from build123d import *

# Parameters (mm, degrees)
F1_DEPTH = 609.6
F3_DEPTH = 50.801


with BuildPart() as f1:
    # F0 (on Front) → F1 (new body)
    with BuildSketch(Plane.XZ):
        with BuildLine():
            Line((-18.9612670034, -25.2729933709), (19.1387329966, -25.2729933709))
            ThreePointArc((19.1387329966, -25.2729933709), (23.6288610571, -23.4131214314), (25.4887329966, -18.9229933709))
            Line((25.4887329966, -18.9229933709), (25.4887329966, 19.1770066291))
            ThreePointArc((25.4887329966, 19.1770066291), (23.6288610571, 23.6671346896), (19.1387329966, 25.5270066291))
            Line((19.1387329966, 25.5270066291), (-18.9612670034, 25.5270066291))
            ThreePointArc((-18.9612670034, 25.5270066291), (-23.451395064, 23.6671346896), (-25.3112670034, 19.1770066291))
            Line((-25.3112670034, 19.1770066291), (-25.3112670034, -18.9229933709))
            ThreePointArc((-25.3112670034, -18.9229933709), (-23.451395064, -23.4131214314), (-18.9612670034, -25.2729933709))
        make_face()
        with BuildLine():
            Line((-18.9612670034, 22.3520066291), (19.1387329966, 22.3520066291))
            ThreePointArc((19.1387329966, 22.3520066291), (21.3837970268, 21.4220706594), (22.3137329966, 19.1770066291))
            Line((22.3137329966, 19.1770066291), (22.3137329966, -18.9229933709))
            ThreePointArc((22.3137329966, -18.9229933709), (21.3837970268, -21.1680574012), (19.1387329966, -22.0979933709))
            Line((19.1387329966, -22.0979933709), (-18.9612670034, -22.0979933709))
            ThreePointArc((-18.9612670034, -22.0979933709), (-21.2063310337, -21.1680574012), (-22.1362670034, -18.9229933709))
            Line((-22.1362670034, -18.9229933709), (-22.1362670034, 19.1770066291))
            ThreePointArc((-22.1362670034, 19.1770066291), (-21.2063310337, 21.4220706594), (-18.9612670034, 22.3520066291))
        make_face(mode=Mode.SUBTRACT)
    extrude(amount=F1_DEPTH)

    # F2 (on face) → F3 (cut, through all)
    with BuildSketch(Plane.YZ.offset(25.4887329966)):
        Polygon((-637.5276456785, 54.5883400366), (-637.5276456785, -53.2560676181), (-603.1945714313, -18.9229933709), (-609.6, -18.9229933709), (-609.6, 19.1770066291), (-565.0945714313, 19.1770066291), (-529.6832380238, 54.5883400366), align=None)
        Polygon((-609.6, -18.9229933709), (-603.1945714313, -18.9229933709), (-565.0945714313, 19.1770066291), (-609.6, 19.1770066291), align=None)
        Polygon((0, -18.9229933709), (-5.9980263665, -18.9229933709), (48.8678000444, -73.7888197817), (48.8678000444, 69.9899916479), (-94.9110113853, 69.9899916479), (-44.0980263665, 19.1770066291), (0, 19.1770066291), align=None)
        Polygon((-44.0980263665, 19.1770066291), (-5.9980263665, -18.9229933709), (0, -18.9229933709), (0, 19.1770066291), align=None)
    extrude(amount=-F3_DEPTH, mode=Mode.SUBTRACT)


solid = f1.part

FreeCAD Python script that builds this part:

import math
import FreeCAD as App
import Part
import Sketcher
Q = App.Units.Quantity

doc = App.newDocument("Part")
params = doc.addObject("Spreadsheet::Sheet", "Params")
for row, (alias, value) in enumerate([
    ("sketch1_radius", "0.25 in"),
    ("sketch1_width", "1.5 in"),
    ("sketch1_radius2", "0.125 in"),
    ("pad1_length", "24 in"),
], start=1):
    params.set(f"A{row}", alias)
    params.set(f"B{row}", "=" + value)
    params.setAlias(f"B{row}", alias)

body = doc.addObject("PartDesign::Body", "Body")

sketch1 = body.newObject("Sketcher::SketchObject", "Sketch")
sketch1.AttachmentSupport = (doc.getObject("XZ_Plane"), [""])
sketch1.MapMode = "FlatFace"
sketch1.addGeometry([
    Part.LineSegment(App.Vector(-19, -25.3, 0), App.Vector(19.1, -25.3, 0)),
    Part.ArcOfCircle(Part.Circle(App.Vector(19.1, -18.9, 0), App.Vector(0, 0, 1), 6.3), math.radians(-90), math.radians(0)),
    Part.LineSegment(App.Vector(25.5, -18.9, 0), App.Vector(25.5, 19.2, 0)),
    Part.ArcOfCircle(Part.Circle(App.Vector(19.1, 19.2, 0), App.Vector(0, 0, 1), 6.3), math.radians(0), math.radians(90)),
    Part.LineSegment(App.Vector(19.1, 25.5, 0), App.Vector(-19, 25.5, 0)),
    Part.ArcOfCircle(Part.Circle(App.Vector(-19, 19.2, 0), App.Vector(0, 0, 1), 6.3), math.radians(90), math.radians(180)),
    Part.LineSegment(App.Vector(-25.3, 19.2, 0), App.Vector(-25.3, -18.9, 0)),
    Part.ArcOfCircle(Part.Circle(App.Vector(-19, -18.9, 0), App.Vector(0, 0, 1), 6.3), math.radians(180), math.radians(270)),
    Part.ArcOfCircle(Part.Circle(App.Vector(-19, 19.2, 0), App.Vector(0, 0, 1), 3.2), math.radians(90), math.radians(180)),
    Part.LineSegment(App.Vector(-19, 22.4, 0), App.Vector(19.1, 22.4, 0)),
    Part.ArcOfCircle(Part.Circle(App.Vector(19.1, 19.2, 0), App.Vector(0, 0, 1), 3.2), math.radians(0), math.radians(90)),
    Part.LineSegment(App.Vector(22.3, 19.2, 0), App.Vector(22.3, -18.9, 0)),
    Part.ArcOfCircle(Part.Circle(App.Vector(19.1, -18.9, 0), App.Vector(0, 0, 1), 3.2), math.radians(-90), math.radians(0)),
    Part.LineSegment(App.Vector(19.1, -22.1, 0), App.Vector(-19, -22.1, 0)),
    Part.ArcOfCircle(Part.Circle(App.Vector(-19, -18.9, 0), App.Vector(0, 0, 1), 3.2), math.radians(180), math.radians(270)),
    Part.LineSegment(App.Vector(-22.1, -18.9, 0), App.Vector(-22.1, 19.2, 0)),
], False)
sketch1.addConstraint([
    Sketcher.Constraint("Tangent", 0, 2, 1, 1),
    Sketcher.Constraint("Tangent", 1, 2, 2, 1),
    Sketcher.Constraint("Tangent", 2, 2, 3, 1),
    Sketcher.Constraint("Tangent", 3, 2, 4, 1),
    Sketcher.Constraint("Tangent", 4, 2, 5, 1),
    Sketcher.Constraint("Tangent", 5, 2, 6, 1),
    Sketcher.Constraint("Tangent", 6, 2, 7, 1),
    Sketcher.Constraint("Tangent", 7, 2, 0, 1),
    Sketcher.Constraint("Tangent", 8, 1, 9, 1),
    Sketcher.Constraint("Tangent", 9, 2, 10, 2),
    Sketcher.Constraint("Tangent", 10, 1, 11, 1),
    Sketcher.Constraint("Tangent", 11, 2, 12, 2),
    Sketcher.Constraint("Tangent", 12, 1, 13, 1),
    Sketcher.Constraint("Tangent", 13, 2, 14, 2),
    Sketcher.Constraint("Tangent", 14, 1, 15, 1),
    Sketcher.Constraint("Tangent", 15, 2, 8, 2),
    Sketcher.Constraint("Horizontal", 0),
    Sketcher.Constraint("Vertical", 2),
    Sketcher.Constraint("Horizontal", 4),
    Sketcher.Constraint("Vertical", 6),
    Sketcher.Constraint("Horizontal", 9),
    Sketcher.Constraint("Vertical", 11),
    Sketcher.Constraint("Horizontal", 13),
    Sketcher.Constraint("Vertical", 15),
    Sketcher.Constraint("Coincident", 8, 3, 5, 3),
    Sketcher.Constraint("Coincident", 10, 3, 3, 3),
    Sketcher.Constraint("Coincident", 12, 3, 1, 3),
    Sketcher.Constraint("Equal", 1, 3),
    Sketcher.Constraint("Equal", 3, 5),
    Sketcher.Constraint("Equal", 5, 7),
    Sketcher.Constraint("Equal", 12, 14),
    Sketcher.Constraint("Equal", 13, 2),
    Sketcher.Constraint("Radius", 1, Q("0.25 in")),
    Sketcher.Constraint("DistanceX", 0, 1, 0, 2, Q("1.5 in")),
    Sketcher.Constraint("Radius", 8, Q("0.125 in")),
    Sketcher.Constraint("DistanceX", -1, 1, 1, 3, Q("19.138733 mm")),
    Sketcher.Constraint("DistanceY", 1, 3, -1, 1, Q("18.922993 mm")),
])
sketch1.setExpression("Constraints[32]", "Params.sketch1_radius")
sketch1.setExpression("Constraints[33]", "Params.sketch1_width")
sketch1.setExpression("Constraints[34]", "Params.sketch1_radius2")
pad1 = body.newObject("PartDesign::Pad", "Pad")
pad1.Profile = sketch1
pad1.setExpression("Length", "Params.pad1_length")

sketch2 = body.newObject("Sketcher::SketchObject", "Sketch001")
sketch2.AttachmentSupport = (doc.getObject("YZ_Plane"), [""])
sketch2.MapMode = "FlatFace"
sketch2.AttachmentOffset = App.Placement(App.Vector(0, 0, 25.488733), App.Rotation())
sketch2.addGeometry([
    Part.LineSegment(App.Vector(-638, 55, 0), App.Vector(-638, -53, 0)),
    Part.LineSegment(App.Vector(-638, -53, 0), App.Vector(-530, 55, 0)),
    Part.LineSegment(App.Vector(-530, 55, 0), App.Vector(-638, 55, 0)),
    Part.LineSegment(App.Vector(49, -74, 0), App.Vector(49, 70, 0)),
    Part.LineSegment(App.Vector(49, 70, 0), App.Vector(-95, 70, 0)),
    Part.LineSegment(App.Vector(-95, 70, 0), App.Vector(49, -74, 0)),
], False)
sketch2.addConstraint([
    Sketcher.Constraint("Coincident", 0, 2, 1, 1),
    Sketcher.Constraint("Coincident", 1, 2, 2, 1),
    Sketcher.Constraint("Coincident", 2, 2, 0, 1),
    Sketcher.Constraint("Coincident", 3, 2, 4, 1),
    Sketcher.Constraint("Coincident", 4, 2, 5, 1),
    Sketcher.Constraint("Coincident", 5, 2, 3, 1),
    Sketcher.Constraint("Vertical", 0),
    Sketcher.Constraint("Horizontal", 2),
    Sketcher.Constraint("Vertical", 3),
    Sketcher.Constraint("Horizontal", 4),
    Sketcher.Constraint("Perpendicular", 1, 5),
    Sketcher.Constraint("Equal", 2, 0),
    Sketcher.Constraint("DistanceX", 1, 2, 3, 2, Q("22.7775999 in")),
    Sketcher.Constraint("DistanceX", 4, 2, 4, 1, Q("143.778811 mm")),
    Sketcher.Constraint("DistanceX", -1, 1, 3, 2, Q("48.8678 mm")),
    Sketcher.Constraint("DistanceX", 2, 2, 2, 1, Q("107.844408 mm")),
    Sketcher.Constraint("DistanceY", -1, 1, 1, 2, Q("54.58834 mm")),
    Sketcher.Constraint("DistanceY", -1, 1, 3, 2, Q("69.989992 mm")),
])
pocket1 = body.newObject("PartDesign::Pocket", "Pocket")
pocket1.Profile = sketch2
pocket1.Type = "ThroughAll"

doc.recompute()
